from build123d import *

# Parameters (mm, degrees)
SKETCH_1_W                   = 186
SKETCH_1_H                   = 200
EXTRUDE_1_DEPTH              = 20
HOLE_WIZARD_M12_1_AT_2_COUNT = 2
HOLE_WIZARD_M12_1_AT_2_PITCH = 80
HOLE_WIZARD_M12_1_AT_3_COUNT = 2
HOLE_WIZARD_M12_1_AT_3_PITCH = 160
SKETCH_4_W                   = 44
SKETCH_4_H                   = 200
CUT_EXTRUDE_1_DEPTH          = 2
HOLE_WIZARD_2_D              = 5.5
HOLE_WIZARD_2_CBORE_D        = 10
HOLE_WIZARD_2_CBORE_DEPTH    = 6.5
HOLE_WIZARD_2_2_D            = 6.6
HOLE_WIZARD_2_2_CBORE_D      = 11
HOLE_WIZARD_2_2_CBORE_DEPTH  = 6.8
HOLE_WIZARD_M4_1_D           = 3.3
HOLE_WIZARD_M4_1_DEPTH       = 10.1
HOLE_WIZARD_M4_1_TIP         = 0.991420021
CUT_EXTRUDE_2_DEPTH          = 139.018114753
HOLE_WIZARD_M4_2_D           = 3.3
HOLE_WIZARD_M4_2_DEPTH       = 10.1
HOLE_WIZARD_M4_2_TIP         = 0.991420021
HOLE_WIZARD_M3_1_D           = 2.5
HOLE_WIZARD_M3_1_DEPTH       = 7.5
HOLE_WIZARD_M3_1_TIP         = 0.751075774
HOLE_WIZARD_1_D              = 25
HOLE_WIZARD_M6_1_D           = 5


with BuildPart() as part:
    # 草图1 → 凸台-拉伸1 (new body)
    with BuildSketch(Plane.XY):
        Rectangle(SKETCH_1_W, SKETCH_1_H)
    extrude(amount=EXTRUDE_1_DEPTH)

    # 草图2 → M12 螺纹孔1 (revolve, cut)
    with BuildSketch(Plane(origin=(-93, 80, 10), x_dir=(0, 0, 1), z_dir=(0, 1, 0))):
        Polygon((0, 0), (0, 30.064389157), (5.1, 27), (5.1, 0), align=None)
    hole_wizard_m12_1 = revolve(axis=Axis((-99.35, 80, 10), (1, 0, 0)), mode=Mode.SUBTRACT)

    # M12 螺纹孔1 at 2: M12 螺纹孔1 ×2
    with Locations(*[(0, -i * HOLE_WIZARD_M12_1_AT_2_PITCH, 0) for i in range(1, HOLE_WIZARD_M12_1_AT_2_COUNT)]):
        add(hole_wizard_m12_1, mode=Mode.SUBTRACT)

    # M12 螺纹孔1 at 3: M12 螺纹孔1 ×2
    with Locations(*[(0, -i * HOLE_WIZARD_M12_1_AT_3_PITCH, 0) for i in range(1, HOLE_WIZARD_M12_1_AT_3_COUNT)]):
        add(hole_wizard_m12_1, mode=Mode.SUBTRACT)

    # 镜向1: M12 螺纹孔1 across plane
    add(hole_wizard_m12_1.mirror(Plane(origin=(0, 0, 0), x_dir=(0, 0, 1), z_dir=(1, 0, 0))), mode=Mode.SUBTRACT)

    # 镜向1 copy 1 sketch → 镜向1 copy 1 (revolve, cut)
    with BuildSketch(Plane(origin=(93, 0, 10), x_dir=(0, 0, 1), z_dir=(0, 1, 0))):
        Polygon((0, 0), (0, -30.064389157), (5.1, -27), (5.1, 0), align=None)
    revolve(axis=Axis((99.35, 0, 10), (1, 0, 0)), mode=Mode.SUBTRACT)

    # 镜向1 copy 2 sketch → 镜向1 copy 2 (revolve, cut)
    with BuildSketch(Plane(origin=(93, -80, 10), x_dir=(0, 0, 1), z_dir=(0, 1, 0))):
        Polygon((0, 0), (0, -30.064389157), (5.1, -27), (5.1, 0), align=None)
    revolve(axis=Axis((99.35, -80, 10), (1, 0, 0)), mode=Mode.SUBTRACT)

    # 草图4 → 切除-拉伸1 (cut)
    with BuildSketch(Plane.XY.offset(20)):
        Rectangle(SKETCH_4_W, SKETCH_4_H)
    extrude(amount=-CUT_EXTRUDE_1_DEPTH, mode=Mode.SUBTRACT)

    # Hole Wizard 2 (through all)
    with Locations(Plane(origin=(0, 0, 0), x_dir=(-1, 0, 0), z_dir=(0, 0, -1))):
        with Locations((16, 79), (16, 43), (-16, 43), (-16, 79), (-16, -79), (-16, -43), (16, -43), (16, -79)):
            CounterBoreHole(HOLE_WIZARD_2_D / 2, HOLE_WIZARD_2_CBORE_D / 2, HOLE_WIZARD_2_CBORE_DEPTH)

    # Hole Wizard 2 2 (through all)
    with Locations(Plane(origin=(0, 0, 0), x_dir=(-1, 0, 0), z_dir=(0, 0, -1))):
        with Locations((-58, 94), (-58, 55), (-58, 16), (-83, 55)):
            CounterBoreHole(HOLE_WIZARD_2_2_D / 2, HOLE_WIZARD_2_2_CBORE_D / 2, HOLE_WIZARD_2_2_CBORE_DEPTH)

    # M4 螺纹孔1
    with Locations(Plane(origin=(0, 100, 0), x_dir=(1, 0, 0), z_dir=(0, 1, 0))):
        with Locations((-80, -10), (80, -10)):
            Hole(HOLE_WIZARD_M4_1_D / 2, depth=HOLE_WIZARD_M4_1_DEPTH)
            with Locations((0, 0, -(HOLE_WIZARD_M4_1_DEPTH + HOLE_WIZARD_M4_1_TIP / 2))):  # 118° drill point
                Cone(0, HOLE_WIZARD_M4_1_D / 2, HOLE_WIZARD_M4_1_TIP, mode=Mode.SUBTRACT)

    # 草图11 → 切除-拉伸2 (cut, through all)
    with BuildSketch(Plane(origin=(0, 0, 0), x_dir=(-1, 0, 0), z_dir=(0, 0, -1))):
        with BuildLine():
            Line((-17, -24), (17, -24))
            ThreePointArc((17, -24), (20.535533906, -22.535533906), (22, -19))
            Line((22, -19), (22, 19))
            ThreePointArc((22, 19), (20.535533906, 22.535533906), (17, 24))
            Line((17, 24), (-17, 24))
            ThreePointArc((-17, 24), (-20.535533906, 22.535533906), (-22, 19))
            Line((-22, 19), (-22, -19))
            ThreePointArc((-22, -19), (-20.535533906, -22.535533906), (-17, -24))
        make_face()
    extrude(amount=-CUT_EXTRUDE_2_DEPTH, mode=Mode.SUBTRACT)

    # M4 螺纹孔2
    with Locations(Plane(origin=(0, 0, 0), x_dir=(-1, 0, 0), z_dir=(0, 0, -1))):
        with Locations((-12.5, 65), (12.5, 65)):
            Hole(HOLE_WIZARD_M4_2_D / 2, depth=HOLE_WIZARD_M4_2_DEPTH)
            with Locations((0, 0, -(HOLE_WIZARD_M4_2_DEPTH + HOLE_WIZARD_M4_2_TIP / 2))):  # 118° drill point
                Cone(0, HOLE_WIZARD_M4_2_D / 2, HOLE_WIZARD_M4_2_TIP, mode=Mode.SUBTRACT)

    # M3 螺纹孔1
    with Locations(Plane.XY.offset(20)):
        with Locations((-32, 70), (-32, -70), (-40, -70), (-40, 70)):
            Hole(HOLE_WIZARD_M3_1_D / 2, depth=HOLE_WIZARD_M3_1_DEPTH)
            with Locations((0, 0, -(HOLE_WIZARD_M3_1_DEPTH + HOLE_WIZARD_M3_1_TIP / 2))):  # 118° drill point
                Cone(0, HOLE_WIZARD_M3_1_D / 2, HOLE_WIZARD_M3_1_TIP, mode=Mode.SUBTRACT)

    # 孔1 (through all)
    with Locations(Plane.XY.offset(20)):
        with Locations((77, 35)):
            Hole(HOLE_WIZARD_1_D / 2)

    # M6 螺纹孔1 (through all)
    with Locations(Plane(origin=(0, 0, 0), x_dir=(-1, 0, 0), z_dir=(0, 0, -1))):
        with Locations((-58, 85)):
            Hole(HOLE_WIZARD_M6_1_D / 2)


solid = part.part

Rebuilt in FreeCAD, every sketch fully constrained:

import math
import FreeCAD as App
import Part
import Sketcher

V = App.Vector
Q = App.Units.Quantity


def add_polygon(sketch, points):
    """Adds a closed chain of lines whose ends are joined by coincident constraints."""
    first, n = sketch.GeometryCount, len(points)
    for a, b in zip(points, points[1:] + points[:1]):
        sketch.addGeometry(Part.LineSegment(App.Vector(*a, 0), App.Vector(*b, 0)), False)
    for i in range(n):
        sketch.addConstraint(Sketcher.Constraint("Coincident", first + i, 2, first + (i + 1) % n, 1))

doc = App.newDocument("Part")
body = doc.addObject("PartDesign::Body", "Body")

sketch1 = doc.addObject("Sketcher::SketchObject", "Sketch")
body.addObject(sketch1)
sketch1.AttachmentSupport = (doc.XY_Plane, [""])
sketch1.MapMode = "FlatFace"
add_polygon(sketch1, [(-93, 100), (-93, -100), (93, -100), (93, 100)])
sketch1.addConstraint([
    Sketcher.Constraint("Vertical", 0),
    Sketcher.Constraint("Horizontal", 1),
    Sketcher.Constraint("Vertical", 2),
    Sketcher.Constraint("Horizontal", 3),
    Sketcher.Constraint("Symmetric", 0, 2, 2, 2, -1, 1),
    Sketcher.Constraint("DistanceX", 1, 1, 1, 2, Q("186 mm")),
    Sketcher.Constraint("DistanceY", 0, 2, 0, 1, Q("200 mm")),
])
pad1 = doc.addObject("PartDesign::Pad", "Pad")
body.addObject(pad1)
pad1.Profile = sketch1
pad1.Length = 20

sketch2 = doc.addObject("Sketcher::SketchObject", "Sketch001")
body.addObject(sketch2)
sketch2.AttachmentSupport = (doc.XZ_Plane, [""])
sketch2.MapMode = "FlatFace"
sketch2.AttachmentOffset = App.Placement(V(0, 0, -80), App.Rotation())
add_polygon(sketch2, [(-63, 10), (-93, 10), (-93, 15), (-66, 15)])
sketch2.addGeometry(Part.LineSegment(V(-93, 10, 0), V(-63, 10, 0)), True)
sketch2.addConstraint([
    Sketcher.Constraint("Horizontal", 0),
    Sketcher.Constraint("Vertical", 1),
    Sketcher.Constraint("Horizontal", 2),
    Sketcher.Constraint("Horizontal", 4),
    Sketcher.Constraint("Coincident", 4, 1, 0, 2),
    Sketcher.Constraint("Equal", 0, 4),
    Sketcher.Constraint("DistanceX", 2, 1, 2, 2, Q("27 mm")),
    Sketcher.Constraint("Angle", 3, Q("-59 deg")),
    Sketcher.Constraint("DistanceY", 1, 1, 1, 2, Q("5.1 mm")),
    Sketcher.Constraint("DistanceX", 0, 2, -1, 1, Q("93 mm")),
    Sketcher.Constraint("DistanceY", -1, 1, 0, 2, Q("10 mm")),
])
groove = doc.addObject("PartDesign::Groove", "Groove")
body.addObject(groove)
groove.Profile = sketch2
groove.ReferenceAxis = (sketch2, ["Axis0"])
groove.Angle = 360
doc.recompute()

linearpattern = doc.addObject("PartDesign::LinearPattern", "LinearPattern")
body.addObject(linearpattern)
linearpattern.Originals = [groove]
linearpattern.Direction = (doc.Y_Axis, [""])
linearpattern.Mode = "offset"
linearpattern.Offset = 80
linearpattern.Occurrences = 2
linearpattern.Reversed = True
body.Tip = linearpattern
doc.recompute()

linearpattern2 = doc.addObject("PartDesign::LinearPattern", "LinearPattern001")
body.addObject(linearpattern2)
linearpattern2.Originals = [groove]
linearpattern2.Direction = (doc.Y_Axis, [""])
linearpattern2.Mode = "offset"
linearpattern2.Offset = 160
linearpattern2.Occurrences = 2
linearpattern2.Reversed = True
body.Tip = linearpattern2
doc.recompute()

mirrored = doc.addObject("PartDesign::Mirrored", "Mirrored")
body.addObject(mirrored)
mirrored.Originals = [groove]
mirrored.MirrorPlane = (doc.YZ_Plane, [""])
body.Tip = mirrored

sketch3 = doc.addObject("Sketcher::SketchObject", "Sketch002")
body.addObject(sketch3)
sketch3.AttachmentSupport = (doc.XZ_Plane, [""])
sketch3.MapMode = "FlatFace"
add_polygon(sketch3, [(93, 10), (63, 10), (66, 15), (93, 15)])
sketch3.addGeometry(Part.LineSegment(V(63, 10, 0), V(93, 10, 0)), True)
sketch3.addConstraint([
    Sketcher.Constraint("Horizontal", 0),
    Sketcher.Constraint("Horizontal", 2),
    Sketcher.Constraint("Vertical", 3),
    Sketcher.Constraint("Horizontal", 4),
    Sketcher.Constraint("Coincident", 4, 1, 0, 2),
    Sketcher.Constraint("Vertical", 2, 2, 4, 2),
    Sketcher.Constraint("DistanceX", 2, 1, 2, 2, Q("27 mm")),
    Sketcher.Constraint("Angle", 1, Q("59 deg")),
    Sketcher.Constraint("DistanceY", 3, 2, 3, 1, Q("5.1 mm")),
    Sketcher.Constraint("DistanceY", -1, 1, 0, 2, Q("10 mm")),
    Sketcher.Constraint("DistanceX", -1, 1, 1, 2, Q("66 mm")),
])
groove2 = doc.addObject("PartDesign::Groove", "Groove001")
body.addObject(groove2)
groove2.Profile = sketch3
groove2.ReferenceAxis = (sketch3, ["Axis0"])
groove2.Angle = 360

sketch4 = doc.addObject("Sketcher::SketchObject", "Sketch003")
body.addObject(sketch4)
sketch4.AttachmentSupport = (doc.XZ_Plane, [""])
sketch4.MapMode = "FlatFace"
sketch4.AttachmentOffset = App.Placement(V(0, 0, 80), App.Rotation())
add_polygon(sketch4, [(93, 10), (63, 10), (66, 15), (93, 15)])
sketch4.addGeometry(Part.LineSegment(V(63, 10, 0), V(93, 10, 0)), True)
sketch4.addConstraint([
    Sketcher.Constraint("Horizontal", 0),
    Sketcher.Constraint("Horizontal", 2),
    Sketcher.Constraint("Vertical", 3),
    Sketcher.Constraint("Horizontal", 4),
    Sketcher.Constraint("Coincident", 4, 1, 0, 2),
    Sketcher.Constraint("Vertical", 2, 2, 4, 2),
    Sketcher.Constraint("DistanceX", 2, 1, 2, 2, Q("27 mm")),
    Sketcher.Constraint("Angle", 1, Q("59 deg")),
    Sketcher.Constraint("DistanceY", 3, 2, 3, 1, Q("5.1 mm")),
    Sketcher.Constraint("DistanceY", -1, 1, 0, 2, Q("10 mm")),
    Sketcher.Constraint("DistanceX", -1, 1, 1, 2, Q("66 mm")),
])
groove3 = doc.addObject("PartDesign::Groove", "Groove002")
body.addObject(groove3)
groove3.Profile = sketch4
groove3.ReferenceAxis = (sketch4, ["Axis0"])
groove3.Angle = 360

sketch5 = doc.addObject("Sketcher::SketchObject", "Sketch004")
body.addObject(sketch5)
sketch5.AttachmentSupport = (doc.XY_Plane, [""])
sketch5.MapMode = "FlatFace"
sketch5.AttachmentOffset = App.Placement(V(0, 0, 20), App.Rotation())
add_polygon(sketch5, [(-22, 100), (-22, -100), (22, -100), (22, 100)])
sketch5.addConstraint([
    Sketcher.Constraint("Vertical", 0),
    Sketcher.Constraint("Horizontal", 1),
    Sketcher.Constraint("Vertical", 2),
    Sketcher.Constraint("Horizontal", 3),
    Sketcher.Constraint("Symmetric", 0, 2, 2, 2, -1, 1),
    Sketcher.Constraint("DistanceX", 1, 1, 1, 2, Q("44 mm")),
    Sketcher.Constraint("DistanceY", 0, 2, 0, 1, Q("200 mm")),
])
pocket1 = doc.addObject("PartDesign::Pocket", "Pocket")
body.addObject(pocket1)
pocket1.Profile = sketch5
pocket1.Length = 2

sketch6 = doc.addObject("Sketcher::SketchObject", "Sketch005")
body.addObject(sketch6)
sketch6.AttachmentSupport = (doc.XY_Plane, [""])
sketch6.MapMode = "FlatFace"
sketch6.addGeometry([
    Part.Circle(V(-16, 79, 0), V(0, 0, 1), 2.8),
    Part.Circle(V(-16, 43, 0), V(0, 0, 1), 2.8),
    Part.Circle(V(16, 43, 0), V(0, 0, 1), 2.8),
    Part.Circle(V(16, 79, 0), V(0, 0, 1), 2.8),
    Part.Circle(V(16, -79, 0), V(0, 0, 1), 2.8),
    Part.Circle(V(16, -43, 0), V(0, 0, 1), 2.8),
    Part.Circle(V(-16, -43, 0), V(0, 0, 1), 2.8),
    Part.Circle(V(-16, -79, 0), V(0, 0, 1), 2.8),
], False)
sketch6.addConstraint([
    Sketcher.Constraint("Equal", 0, 1),
    Sketcher.Constraint("Equal", 1, 2),
    Sketcher.Constraint("Equal", 2, 3),
    Sketcher.Constraint("Equal", 3, 4),
    Sketcher.Constraint("Equal", 4, 5),
    Sketcher.Constraint("Equal", 5, 6),
    Sketcher.Constraint("Equal", 6, 7),
    Sketcher.Constraint("Symmetric", 0, 3, 4, 3, -1, 1),
    Sketcher.Constraint("Symmetric", 1, 3, 5, 3, -1, 1),
    Sketcher.Constraint("Symmetric", 2, 3, 6, 3, -1, 1),
    Sketcher.Constraint("Symmetric", 3, 3, 7, 3, -1, 1),
    Sketcher.Constraint("Symmetric", 1, 3, 2, 3, -2),
    Sketcher.Constraint("Symmetric", 0, 3, 3, 3, -2),
    Sketcher.Constraint("Vertical", 0, 3, 1, 3),
    Sketcher.Constraint("Diameter", 0, Q("5.5 mm")),
    Sketcher.Constraint("DistanceX", 0, 3, -1, 1, Q("16 mm")),
    Sketcher.Constraint("DistanceY", -1, 1, 0, 3, Q("79 mm")),
    Sketcher.Constraint("DistanceY", -1, 1, 1, 3, Q("43 mm")),
])
doc.recompute()
hole = doc.addObject("PartDesign::Hole", "Hole")
body.addObject(hole)
hole.Profile = sketch6
hole.ThreadType = "None"
hole.Diameter = 5.5
hole.DepthType = "ThroughAll"
hole.HoleCutType = "Counterbore"
hole.HoleCutDiameter = 10
hole.HoleCutDepth = 6.5
hole.Reversed = True

sketch7 = doc.addObject("Sketcher::SketchObject", "Sketch006")
body.addObject(sketch7)
sketch7.AttachmentSupport = (doc.XY_Plane, [""])
sketch7.MapMode = "FlatFace"
sketch7.addGeometry([
    Part.Circle(V(58, 94, 0), V(0, 0, 1), 3.3),
    Part.Circle(V(58, 55, 0), V(0, 0, 1), 3.3),
    Part.Circle(V(58, 16, 0), V(0, 0, 1), 3.3),
    Part.Circle(V(83, 55, 0), V(0, 0, 1), 3.3),
], False)
sketch7.addConstraint([
    Sketcher.Constraint("Equal", 0, 1),
    Sketcher.Constraint("Equal", 1, 2),
    Sketcher.Constraint("Equal", 2, 3),
    Sketcher.Constraint("Horizontal", 1, 3, 3, 3),
    Sketcher.Constraint("Vertical", 0, 3, 1, 3),
    Sketcher.Constraint("Vertical", 1, 3, 2, 3),
    Sketcher.Constraint("Diameter", 0, Q("6.6 mm")),
    Sketcher.Constraint("DistanceX", -1, 1, 0, 3, Q("58 mm")),
    Sketcher.Constraint("DistanceY", -1, 1, 0, 3, Q("94 mm")),
    Sketcher.Constraint("DistanceY", -1, 1, 1, 3, Q("55 mm")),
    Sketcher.Constraint("DistanceY", -1, 1, 2, 3, Q("16 mm")),
    Sketcher.Constraint("DistanceX", -1, 1, 3, 3, Q("83 mm")),
])
doc.recompute()
hole2 = doc.addObject("PartDesign::Hole", "Hole001")
body.addObject(hole2)
hole2.Profile = sketch7
hole2.ThreadType = "None"
hole2.Diameter = 6.6
hole2.DepthType = "ThroughAll"
hole2.HoleCutType = "Counterbore"
hole2.HoleCutDiameter = 11
hole2.HoleCutDepth = 6.8
hole2.Reversed = True

sketch8 = doc.addObject("Sketcher::SketchObject", "Sketch007")
body.addObject(sketch8)
sketch8.AttachmentSupport = (doc.XZ_Plane, [""])
sketch8.MapMode = "FlatFace"
sketch8.AttachmentOffset = App.Placement(V(0, 0, -100), App.Rotation())
sketch8.addGeometry([
    Part.Circle(V(-80, 10, 0), V(0, 0, 1), 1.6),
    Part.Circle(V(80, 10, 0), V(0, 0, 1), 1.6),
], False)
sketch8.addConstraint([
    Sketcher.Constraint("Equal", 0, 1),
    Sketcher.Constraint("Symmetric", 0, 3, 1, 3, -2),
    Sketcher.Constraint("Diameter", 0, Q("3.3 mm")),
    Sketcher.Constraint("DistanceX", 0, 3, -1, 1, Q("80 mm")),
    Sketcher.Constraint("DistanceY", -1, 1, 0, 3, Q("10 mm")),
])
doc.recompute()
hole3 = doc.addObject("PartDesign::Hole", "Hole002")
body.addObject(hole3)
hole3.Profile = sketch8
hole3.ThreadType = "None"
hole3.Diameter = 3.3
hole3.DepthType = "Dimension"
hole3.Depth = 10.1
hole3.DrillPoint = "Angled"
hole3.DrillPointAngle = 118
hole3.Reversed = True

sketch9 = doc.addObject("Sketcher::SketchObject", "Sketch008")
body.addObject(sketch9)
sketch9.AttachmentSupport = (doc.XY_Plane, [""])
sketch9.MapMode = "FlatFace"
sketch9.addGeometry([
    Part.LineSegment(V(17, -24, 0), V(-17, -24, 0)),
    Part.ArcOfCircle(Part.Circle(V(-17, -19, 0), V(0, 0, 1), 5), math.radians(180), math.radians(270)),
    Part.LineSegment(V(-22, -19, 0), V(-22, 19, 0)),
    Part.ArcOfCircle(Part.Circle(V(-17, 19, 0), V(0, 0, 1), 5), math.radians(90), math.radians(180)),
    Part.LineSegment(V(-17, 24, 0), V(17, 24, 0)),
    Part.ArcOfCircle(Part.Circle(V(17, 19, 0), V(0, 0, 1), 5), math.radians(0), math.radians(90)),
    Part.LineSegment(V(22, 19, 0), V(22, -19, 0)),
    Part.ArcOfCircle(Part.Circle(V(17, -19, 0), V(0, 0, 1), 5), math.radians(-90), math.radians(0)),
], False)
sketch9.addConstraint([
    Sketcher.Constraint("Tangent", 0, 2, 1, 2),
    Sketcher.Constraint("Tangent", 1, 1, 2, 1),
    Sketcher.Constraint("Tangent", 2, 2, 3, 2),
    Sketcher.Constraint("Tangent", 3, 1, 4, 1),
    Sketcher.Constraint("Tangent", 4, 2, 5, 2),
    Sketcher.Constraint("Tangent", 5, 1, 6, 1),
    Sketcher.Constraint("Tangent", 6, 2, 7, 2),
    Sketcher.Constraint("Tangent", 7, 1, 0, 1),
    Sketcher.Constraint("Horizontal", 0),
    Sketcher.Constraint("Vertical", 2),
    Sketcher.Constraint("Horizontal", 4),
    Sketcher.Constraint("Vertical", 6),
    Sketcher.Constraint("Equal", 1, 3),
    Sketcher.Constraint("Equal", 3, 5),
    Sketcher.Constraint("Equal", 5, 7),
    Sketcher.Constraint("Symmetric", 1, 3, 5, 3, -1, 1),
    Sketcher.Constraint("Radius", 1, Q("5 mm")),
    Sketcher.Constraint("DistanceX", 0, 2, 0, 1, Q("34 mm")),
    Sketcher.Constraint("DistanceY", 2, 1, 2, 2, Q("38 mm")),
])
pocket2 = doc.addObject("PartDesign::Pocket", "Pocket001")
body.addObject(pocket2)
pocket2.Profile = sketch9
pocket2.Type = "ThroughAll"
pocket2.Reversed = True

sketch10 = doc.addObject("Sketcher::SketchObject", "Sketch009")
body.addObject(sketch10)
sketch10.AttachmentSupport = (doc.XY_Plane, [""])
sketch10.MapMode = "FlatFace"
sketch10.addGeometry([
    Part.Circle(V(12.5, 65, 0), V(0, 0, 1), 1.6),
    Part.Circle(V(-12.5, 65, 0), V(0, 0, 1), 1.6),
], False)
sketch10.addConstraint([
    Sketcher.Constraint("Equal", 0, 1),
    Sketcher.Constraint("Symmetric", 0, 3, 1, 3, -2),
    Sketcher.Constraint("Diameter", 0, Q("3.3 mm")),
    Sketcher.Constraint("DistanceY", -1, 1, 0, 3, Q("65 mm")),
    Sketcher.Constraint("DistanceX", 1, 3, 0, 3, Q("25 mm")),
])
doc.recompute()
hole4 = doc.addObject("PartDesign::Hole", "Hole003")
body.addObject(hole4)
hole4.Profile = sketch10
hole4.ThreadType = "None"
hole4.Diameter = 3.3
hole4.DepthType = "Dimension"
hole4.Depth = 10.1
hole4.DrillPoint = "Angled"
hole4.DrillPointAngle = 118
hole4.Reversed = True

sketch11 = doc.addObject("Sketcher::SketchObject", "Sketch010")
body.addObject(sketch11)
sketch11.AttachmentSupport = (doc.XY_Plane, [""])
sketch11.MapMode = "FlatFace"
sketch11.AttachmentOffset = App.Placement(V(0, 0, 20), App.Rotation())
sketch11.addGeometry([
    Part.Circle(V(-32, 70, 0), V(0, 0, 1), 1.2),
    Part.Circle(V(-32, -70, 0), V(0, 0, 1), 1.2),
    Part.Circle(V(-40, -70, 0), V(0, 0, 1), 1.2),
    Part.Circle(V(-40, 70, 0), V(0, 0, 1), 1.2),
], False)
sketch11.addConstraint([
    Sketcher.Constraint("Equal", 0, 1),
    Sketcher.Constraint("Equal", 1, 2),
    Sketcher.Constraint("Equal", 2, 3),
    Sketcher.Constraint("Symmetric", 0, 3, 1, 3, -1),
    Sketcher.Constraint("Symmetric", 2, 3, 3, 3, -1),
    Sketcher.Constraint("Horizontal", 1, 3, 2, 3),
    Sketcher.Constraint("Diameter", 0, Q("2.5 mm")),
    Sketcher.Constraint("DistanceX", 0, 3, -1, 1, Q("32 mm")),
    Sketcher.Constraint("DistanceY", -1, 1, 0, 3, Q("70 mm")),
    Sketcher.Constraint("DistanceX", 2, 3, -1, 1, Q("40 mm")),
])
doc.recompute()
hole5 = doc.addObject("PartDesign::Hole", "Hole004")
body.addObject(hole5)
hole5.Profile = sketch11
hole5.ThreadType = "None"
hole5.Diameter = 2.5
hole5.DepthType = "Dimension"
hole5.Depth = 7.5
hole5.DrillPoint = "Angled"
hole5.DrillPointAngle = 118

sketch12 = doc.addObject("Sketcher::SketchObject", "Sketch011")
body.addObject(sketch12)
sketch12.AttachmentSupport = (doc.XY_Plane, [""])
sketch12.MapMode = "FlatFace"
sketch12.AttachmentOffset = App.Placement(V(0, 0, 20), App.Rotation())
sketch12.addGeometry(Part.Circle(V(77, 35, 0), V(0, 0, 1), 12), False)
sketch12.addConstraint([
    Sketcher.Constraint("Diameter", 0, Q("25 mm")),
    Sketcher.Constraint("DistanceX", -1, 1, 0, 3, Q("77 mm")),
    Sketcher.Constraint("DistanceY", -1, 1, 0, 3, Q("35 mm")),
])
doc.recompute()
hole6 = doc.addObject("PartDesign::Hole", "Hole005")
body.addObject(hole6)
hole6.Profile = sketch12
hole6.ThreadType = "None"
hole6.Diameter = 25
hole6.DepthType = "ThroughAll"

sketch13 = doc.addObject("Sketcher::SketchObject", "Sketch012")
body.addObject(sketch13)
sketch13.AttachmentSupport = (doc.XY_Plane, [""])
sketch13.MapMode = "FlatFace"
sketch13.addGeometry(Part.Circle(V(58, 85, 0), V(0, 0, 1), 2.5), False)
sketch13.addConstraint([
    Sketcher.Constraint("Diameter", 0, Q("5 mm")),
    Sketcher.Constraint("DistanceX", -1, 1, 0, 3, Q("58 mm")),
    Sketcher.Constraint("DistanceY", -1, 1, 0, 3, Q("85 mm")),
])
doc.recompute()
hole7 = doc.addObject("PartDesign::Hole", "Hole006")
body.addObject(hole7)
hole7.Profile = sketch13
hole7.ThreadType = "None"
hole7.Diameter = 5
hole7.DepthType = "ThroughAll"
hole7.Reversed = True

doc.recompute()
